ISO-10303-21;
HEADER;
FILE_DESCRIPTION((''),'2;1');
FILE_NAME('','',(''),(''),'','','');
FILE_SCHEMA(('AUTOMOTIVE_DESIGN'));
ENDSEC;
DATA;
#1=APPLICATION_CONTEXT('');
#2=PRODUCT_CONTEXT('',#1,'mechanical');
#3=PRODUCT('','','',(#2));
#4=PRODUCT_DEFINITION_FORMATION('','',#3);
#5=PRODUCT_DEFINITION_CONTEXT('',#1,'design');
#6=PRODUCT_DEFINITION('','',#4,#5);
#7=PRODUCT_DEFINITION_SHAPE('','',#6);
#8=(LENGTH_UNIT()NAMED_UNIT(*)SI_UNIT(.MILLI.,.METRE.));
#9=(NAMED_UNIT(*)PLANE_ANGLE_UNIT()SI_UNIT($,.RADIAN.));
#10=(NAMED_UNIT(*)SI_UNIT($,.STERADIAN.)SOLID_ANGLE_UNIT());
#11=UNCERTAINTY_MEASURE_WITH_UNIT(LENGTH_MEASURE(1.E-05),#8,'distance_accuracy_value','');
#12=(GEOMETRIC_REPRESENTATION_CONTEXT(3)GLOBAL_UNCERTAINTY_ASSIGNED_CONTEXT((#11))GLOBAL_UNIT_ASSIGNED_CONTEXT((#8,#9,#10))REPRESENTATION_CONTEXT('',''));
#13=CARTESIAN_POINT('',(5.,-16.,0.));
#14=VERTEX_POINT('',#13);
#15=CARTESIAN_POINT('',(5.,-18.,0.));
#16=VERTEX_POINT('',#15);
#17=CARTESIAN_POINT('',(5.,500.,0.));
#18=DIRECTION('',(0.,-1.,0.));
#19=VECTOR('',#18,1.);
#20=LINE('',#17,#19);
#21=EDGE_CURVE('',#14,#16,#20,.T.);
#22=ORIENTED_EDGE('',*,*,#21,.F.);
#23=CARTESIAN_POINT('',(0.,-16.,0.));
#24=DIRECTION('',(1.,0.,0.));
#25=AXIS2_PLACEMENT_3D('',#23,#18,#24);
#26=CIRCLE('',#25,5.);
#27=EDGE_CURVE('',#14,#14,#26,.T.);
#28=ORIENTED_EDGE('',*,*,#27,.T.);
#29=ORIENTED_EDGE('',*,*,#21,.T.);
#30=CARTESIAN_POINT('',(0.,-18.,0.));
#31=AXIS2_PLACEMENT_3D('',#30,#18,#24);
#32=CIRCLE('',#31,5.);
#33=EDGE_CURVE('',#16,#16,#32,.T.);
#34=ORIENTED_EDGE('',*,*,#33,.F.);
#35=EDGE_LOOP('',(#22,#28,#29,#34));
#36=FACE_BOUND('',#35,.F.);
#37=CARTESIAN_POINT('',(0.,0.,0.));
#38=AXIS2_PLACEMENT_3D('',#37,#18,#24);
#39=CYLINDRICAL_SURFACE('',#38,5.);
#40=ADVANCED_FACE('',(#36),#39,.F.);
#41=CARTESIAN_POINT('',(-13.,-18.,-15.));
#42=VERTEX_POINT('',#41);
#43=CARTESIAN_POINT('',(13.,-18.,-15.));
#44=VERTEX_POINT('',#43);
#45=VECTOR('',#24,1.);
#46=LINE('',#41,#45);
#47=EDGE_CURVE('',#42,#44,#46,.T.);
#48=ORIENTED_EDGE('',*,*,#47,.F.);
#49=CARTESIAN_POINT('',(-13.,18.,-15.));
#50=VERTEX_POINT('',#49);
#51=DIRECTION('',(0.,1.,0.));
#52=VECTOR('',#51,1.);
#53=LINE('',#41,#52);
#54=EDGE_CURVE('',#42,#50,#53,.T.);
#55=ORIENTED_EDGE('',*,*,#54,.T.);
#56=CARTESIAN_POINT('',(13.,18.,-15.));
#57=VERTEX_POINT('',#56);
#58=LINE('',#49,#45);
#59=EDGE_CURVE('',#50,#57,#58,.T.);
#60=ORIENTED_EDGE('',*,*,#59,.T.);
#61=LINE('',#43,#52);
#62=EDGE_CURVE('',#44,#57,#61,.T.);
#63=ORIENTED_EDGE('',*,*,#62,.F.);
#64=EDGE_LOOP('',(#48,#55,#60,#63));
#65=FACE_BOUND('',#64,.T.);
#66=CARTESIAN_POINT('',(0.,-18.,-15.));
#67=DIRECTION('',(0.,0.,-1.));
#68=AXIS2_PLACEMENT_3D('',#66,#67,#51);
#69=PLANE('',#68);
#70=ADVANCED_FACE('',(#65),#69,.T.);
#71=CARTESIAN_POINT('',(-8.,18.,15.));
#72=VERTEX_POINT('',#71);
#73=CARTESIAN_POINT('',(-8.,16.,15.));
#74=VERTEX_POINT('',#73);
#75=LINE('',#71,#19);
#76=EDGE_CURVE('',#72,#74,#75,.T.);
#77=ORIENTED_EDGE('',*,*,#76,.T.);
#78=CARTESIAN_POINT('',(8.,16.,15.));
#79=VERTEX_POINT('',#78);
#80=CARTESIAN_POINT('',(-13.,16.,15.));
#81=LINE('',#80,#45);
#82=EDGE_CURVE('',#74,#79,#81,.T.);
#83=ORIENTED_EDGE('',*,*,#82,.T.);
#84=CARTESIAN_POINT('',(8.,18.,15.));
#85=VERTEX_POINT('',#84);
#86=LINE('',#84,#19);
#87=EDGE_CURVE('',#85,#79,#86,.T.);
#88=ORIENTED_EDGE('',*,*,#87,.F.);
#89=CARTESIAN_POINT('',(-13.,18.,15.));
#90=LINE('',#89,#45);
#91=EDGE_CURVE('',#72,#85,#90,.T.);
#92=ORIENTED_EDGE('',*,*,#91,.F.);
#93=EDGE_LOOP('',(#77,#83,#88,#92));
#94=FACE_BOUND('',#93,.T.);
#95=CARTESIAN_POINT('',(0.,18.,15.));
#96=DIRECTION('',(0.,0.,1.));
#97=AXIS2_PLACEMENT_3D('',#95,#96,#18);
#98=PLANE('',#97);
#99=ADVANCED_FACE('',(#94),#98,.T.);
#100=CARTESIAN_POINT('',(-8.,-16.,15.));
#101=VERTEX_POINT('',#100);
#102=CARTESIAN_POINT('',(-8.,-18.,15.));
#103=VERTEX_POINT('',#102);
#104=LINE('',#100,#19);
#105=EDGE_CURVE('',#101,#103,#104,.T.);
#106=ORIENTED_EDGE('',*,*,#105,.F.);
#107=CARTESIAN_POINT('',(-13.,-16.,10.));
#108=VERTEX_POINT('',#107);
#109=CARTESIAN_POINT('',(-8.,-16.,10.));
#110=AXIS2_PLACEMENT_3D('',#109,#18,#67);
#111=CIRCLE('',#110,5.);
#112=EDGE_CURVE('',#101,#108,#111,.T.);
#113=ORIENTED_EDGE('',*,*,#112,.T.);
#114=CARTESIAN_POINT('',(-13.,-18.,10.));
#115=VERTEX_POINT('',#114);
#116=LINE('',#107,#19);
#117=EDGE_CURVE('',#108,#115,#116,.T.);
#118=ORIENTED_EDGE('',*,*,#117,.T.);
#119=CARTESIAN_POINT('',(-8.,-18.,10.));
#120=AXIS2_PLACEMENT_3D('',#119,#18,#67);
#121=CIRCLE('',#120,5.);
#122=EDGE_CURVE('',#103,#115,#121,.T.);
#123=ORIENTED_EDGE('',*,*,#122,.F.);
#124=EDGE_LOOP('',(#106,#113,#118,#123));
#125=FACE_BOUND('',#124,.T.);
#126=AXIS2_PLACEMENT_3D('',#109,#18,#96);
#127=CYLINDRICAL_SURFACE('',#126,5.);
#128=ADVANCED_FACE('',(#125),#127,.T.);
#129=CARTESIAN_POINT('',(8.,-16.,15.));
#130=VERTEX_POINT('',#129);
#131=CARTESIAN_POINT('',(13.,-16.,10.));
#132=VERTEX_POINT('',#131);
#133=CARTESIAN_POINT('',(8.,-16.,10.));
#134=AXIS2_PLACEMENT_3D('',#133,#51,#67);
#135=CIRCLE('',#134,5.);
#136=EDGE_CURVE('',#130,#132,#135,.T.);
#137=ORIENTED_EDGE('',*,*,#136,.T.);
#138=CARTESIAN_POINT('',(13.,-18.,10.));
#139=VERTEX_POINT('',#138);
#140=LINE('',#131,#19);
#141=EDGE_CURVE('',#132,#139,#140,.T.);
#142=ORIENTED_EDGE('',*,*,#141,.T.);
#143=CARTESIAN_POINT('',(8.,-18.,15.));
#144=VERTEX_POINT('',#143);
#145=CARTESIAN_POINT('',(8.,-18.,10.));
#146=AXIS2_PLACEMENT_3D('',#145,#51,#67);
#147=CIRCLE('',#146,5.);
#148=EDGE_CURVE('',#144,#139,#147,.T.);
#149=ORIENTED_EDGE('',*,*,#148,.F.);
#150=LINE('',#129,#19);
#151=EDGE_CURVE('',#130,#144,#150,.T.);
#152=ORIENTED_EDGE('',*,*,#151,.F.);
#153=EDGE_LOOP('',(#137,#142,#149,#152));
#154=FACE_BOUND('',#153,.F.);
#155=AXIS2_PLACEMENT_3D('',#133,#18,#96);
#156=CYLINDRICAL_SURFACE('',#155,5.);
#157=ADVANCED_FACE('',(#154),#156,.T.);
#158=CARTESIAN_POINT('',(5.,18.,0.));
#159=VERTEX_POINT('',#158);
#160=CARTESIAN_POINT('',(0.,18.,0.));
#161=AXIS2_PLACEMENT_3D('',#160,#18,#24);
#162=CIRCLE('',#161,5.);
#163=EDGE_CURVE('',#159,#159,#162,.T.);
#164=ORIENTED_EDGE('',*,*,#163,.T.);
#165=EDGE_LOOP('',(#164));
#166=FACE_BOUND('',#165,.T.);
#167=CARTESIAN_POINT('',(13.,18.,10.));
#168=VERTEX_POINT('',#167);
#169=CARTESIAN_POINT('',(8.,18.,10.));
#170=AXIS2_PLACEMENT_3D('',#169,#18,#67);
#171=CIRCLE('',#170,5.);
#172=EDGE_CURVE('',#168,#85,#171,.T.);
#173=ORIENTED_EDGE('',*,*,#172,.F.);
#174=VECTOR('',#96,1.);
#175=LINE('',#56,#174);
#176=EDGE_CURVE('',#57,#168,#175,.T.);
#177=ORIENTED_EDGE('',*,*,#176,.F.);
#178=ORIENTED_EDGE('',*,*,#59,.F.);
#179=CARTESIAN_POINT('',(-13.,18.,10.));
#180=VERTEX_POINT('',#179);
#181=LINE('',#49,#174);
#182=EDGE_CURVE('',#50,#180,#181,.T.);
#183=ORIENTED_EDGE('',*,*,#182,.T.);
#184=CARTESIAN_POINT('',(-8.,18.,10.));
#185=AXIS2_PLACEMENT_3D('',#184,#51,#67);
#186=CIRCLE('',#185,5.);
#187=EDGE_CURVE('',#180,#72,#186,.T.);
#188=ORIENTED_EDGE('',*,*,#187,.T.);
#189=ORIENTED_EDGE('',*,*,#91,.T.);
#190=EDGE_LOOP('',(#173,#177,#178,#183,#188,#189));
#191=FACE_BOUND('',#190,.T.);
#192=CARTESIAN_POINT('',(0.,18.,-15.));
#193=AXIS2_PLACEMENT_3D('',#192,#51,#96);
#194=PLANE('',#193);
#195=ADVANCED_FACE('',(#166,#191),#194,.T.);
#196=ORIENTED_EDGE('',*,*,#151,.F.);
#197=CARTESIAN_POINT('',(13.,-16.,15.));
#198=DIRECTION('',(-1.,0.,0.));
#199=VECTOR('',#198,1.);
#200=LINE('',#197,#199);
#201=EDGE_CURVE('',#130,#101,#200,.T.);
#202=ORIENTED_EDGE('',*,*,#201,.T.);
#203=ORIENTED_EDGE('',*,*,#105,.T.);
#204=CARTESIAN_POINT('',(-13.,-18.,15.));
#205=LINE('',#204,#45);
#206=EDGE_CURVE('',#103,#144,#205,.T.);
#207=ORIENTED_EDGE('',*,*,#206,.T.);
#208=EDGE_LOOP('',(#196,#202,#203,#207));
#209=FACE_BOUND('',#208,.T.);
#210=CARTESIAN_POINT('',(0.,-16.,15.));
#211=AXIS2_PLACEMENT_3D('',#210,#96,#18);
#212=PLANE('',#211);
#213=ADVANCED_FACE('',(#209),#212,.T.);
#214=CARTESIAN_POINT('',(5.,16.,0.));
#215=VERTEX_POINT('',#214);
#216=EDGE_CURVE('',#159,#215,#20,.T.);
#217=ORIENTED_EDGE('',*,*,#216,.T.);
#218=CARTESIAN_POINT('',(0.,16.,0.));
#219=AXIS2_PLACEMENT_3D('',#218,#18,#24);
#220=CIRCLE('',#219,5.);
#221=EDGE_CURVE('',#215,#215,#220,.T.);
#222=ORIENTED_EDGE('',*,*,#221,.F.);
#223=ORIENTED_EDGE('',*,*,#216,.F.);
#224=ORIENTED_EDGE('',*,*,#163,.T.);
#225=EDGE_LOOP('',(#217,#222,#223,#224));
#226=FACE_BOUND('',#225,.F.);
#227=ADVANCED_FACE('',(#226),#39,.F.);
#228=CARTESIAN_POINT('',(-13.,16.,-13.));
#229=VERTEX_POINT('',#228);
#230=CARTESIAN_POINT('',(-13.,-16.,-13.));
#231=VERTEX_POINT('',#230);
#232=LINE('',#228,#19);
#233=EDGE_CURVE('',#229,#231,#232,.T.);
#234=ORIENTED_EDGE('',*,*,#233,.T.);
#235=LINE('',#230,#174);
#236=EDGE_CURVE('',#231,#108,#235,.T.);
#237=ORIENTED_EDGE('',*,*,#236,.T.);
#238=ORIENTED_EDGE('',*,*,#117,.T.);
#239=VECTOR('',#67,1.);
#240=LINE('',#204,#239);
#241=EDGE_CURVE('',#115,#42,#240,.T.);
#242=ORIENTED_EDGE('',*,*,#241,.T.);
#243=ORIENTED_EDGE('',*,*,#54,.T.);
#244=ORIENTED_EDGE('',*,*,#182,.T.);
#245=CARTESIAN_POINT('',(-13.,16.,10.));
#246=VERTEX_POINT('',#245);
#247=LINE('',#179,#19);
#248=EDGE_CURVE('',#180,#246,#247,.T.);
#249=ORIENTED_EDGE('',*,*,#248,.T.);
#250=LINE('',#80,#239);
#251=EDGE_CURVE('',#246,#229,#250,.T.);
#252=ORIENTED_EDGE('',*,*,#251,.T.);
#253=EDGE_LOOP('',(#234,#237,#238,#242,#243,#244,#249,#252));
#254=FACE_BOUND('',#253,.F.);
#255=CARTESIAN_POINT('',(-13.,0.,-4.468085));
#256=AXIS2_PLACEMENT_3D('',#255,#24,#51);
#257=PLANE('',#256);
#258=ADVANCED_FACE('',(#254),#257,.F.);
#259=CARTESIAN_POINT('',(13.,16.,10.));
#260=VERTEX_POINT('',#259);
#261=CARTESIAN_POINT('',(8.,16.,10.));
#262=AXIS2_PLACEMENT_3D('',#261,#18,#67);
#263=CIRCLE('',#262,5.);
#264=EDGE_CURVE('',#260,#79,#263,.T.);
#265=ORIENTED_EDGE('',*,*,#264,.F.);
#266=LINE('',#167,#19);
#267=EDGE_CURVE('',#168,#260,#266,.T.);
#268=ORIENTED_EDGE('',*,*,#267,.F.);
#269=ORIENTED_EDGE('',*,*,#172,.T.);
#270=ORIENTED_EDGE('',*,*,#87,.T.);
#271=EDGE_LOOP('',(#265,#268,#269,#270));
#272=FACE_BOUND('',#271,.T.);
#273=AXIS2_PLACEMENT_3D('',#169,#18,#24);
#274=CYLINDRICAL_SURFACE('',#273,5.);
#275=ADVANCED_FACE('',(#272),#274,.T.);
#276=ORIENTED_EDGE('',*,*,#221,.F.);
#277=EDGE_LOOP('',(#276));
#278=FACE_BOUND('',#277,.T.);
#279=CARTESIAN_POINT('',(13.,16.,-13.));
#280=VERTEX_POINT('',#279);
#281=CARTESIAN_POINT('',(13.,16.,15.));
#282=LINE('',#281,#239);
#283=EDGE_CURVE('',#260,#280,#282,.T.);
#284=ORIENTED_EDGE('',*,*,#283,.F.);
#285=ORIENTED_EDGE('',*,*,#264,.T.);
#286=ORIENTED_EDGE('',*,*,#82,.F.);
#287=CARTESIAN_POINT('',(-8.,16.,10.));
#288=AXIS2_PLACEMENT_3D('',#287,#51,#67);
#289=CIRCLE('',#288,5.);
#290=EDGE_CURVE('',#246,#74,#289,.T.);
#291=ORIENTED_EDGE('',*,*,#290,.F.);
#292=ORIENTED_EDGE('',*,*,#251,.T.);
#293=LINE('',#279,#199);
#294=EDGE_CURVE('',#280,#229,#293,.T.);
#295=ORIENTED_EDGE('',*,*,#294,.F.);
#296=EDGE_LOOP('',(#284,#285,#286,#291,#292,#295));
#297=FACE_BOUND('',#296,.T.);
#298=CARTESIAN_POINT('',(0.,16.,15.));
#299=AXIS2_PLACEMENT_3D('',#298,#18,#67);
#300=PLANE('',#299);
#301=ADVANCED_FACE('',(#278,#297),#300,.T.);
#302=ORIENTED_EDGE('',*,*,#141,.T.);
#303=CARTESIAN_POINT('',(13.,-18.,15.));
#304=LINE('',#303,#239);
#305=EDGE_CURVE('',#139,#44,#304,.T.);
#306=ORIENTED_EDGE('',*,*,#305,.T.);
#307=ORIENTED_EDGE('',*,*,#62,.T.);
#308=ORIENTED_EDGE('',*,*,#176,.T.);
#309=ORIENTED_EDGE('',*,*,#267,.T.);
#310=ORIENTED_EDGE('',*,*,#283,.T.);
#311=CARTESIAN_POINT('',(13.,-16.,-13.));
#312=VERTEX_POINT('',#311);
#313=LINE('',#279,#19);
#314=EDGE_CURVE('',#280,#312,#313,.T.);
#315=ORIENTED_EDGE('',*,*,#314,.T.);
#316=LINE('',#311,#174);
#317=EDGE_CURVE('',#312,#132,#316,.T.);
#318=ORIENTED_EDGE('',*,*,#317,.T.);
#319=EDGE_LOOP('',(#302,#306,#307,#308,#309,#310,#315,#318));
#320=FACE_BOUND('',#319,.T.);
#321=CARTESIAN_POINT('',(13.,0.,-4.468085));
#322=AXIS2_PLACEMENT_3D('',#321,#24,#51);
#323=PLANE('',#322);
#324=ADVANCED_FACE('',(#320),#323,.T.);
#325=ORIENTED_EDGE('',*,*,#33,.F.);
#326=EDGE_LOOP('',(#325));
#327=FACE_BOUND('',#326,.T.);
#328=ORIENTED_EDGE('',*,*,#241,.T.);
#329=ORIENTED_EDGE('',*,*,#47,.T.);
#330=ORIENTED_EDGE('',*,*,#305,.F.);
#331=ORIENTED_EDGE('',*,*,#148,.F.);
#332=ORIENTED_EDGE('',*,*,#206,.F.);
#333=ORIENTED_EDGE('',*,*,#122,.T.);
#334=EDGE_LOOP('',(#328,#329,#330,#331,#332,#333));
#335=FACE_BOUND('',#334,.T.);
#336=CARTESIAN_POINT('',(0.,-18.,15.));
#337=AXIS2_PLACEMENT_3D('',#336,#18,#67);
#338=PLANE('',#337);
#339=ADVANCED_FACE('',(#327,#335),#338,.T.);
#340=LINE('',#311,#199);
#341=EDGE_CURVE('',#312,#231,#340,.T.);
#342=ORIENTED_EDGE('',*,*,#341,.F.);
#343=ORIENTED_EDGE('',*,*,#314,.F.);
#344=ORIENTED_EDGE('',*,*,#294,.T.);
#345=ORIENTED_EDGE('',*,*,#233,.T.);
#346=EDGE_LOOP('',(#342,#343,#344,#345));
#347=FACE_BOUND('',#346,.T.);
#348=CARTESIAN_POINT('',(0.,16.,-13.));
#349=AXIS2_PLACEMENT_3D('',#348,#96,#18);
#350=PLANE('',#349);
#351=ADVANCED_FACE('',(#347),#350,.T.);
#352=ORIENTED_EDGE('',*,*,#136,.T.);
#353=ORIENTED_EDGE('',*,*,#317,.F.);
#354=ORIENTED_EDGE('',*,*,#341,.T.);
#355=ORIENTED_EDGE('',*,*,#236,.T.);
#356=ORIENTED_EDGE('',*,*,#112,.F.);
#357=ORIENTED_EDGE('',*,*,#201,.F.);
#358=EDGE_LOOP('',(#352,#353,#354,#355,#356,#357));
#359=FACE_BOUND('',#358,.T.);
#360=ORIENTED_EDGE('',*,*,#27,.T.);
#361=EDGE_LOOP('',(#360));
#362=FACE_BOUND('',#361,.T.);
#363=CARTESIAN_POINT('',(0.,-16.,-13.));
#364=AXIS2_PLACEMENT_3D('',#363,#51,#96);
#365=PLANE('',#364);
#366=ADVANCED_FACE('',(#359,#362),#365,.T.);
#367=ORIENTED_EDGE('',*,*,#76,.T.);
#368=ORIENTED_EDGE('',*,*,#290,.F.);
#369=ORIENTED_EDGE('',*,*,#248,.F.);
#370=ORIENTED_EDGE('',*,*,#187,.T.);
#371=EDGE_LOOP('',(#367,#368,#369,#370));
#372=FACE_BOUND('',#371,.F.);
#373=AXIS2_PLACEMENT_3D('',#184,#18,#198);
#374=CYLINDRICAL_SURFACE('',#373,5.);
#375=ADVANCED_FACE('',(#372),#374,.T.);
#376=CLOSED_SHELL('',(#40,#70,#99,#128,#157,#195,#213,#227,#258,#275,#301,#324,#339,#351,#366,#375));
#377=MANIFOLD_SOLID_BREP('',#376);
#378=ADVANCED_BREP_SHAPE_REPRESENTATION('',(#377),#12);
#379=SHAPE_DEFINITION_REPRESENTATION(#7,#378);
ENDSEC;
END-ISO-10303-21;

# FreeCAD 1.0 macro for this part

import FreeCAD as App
import Part
import Sketcher

V = App.Vector


def edges_at(feature, points):
    """Names of the edges that pass closest to the given points."""
    edges = feature.Shape.Edges
    near = lambda p: min(range(len(edges)), key=lambda i: edges[i].distToShape(Part.Vertex(*p))[0])
    return sorted({f"Edge{near(p) + 1}" for p in points})


def add_polygon(sketch, points):
    """Adds a closed chain of lines whose ends are joined by coincident constraints."""
    first, n = sketch.GeometryCount, len(points)
    for a, b in zip(points, points[1:] + points[:1]):
        sketch.addGeometry(Part.LineSegment(App.Vector(*a, 0), App.Vector(*b, 0)), False)
    for i in range(n):
        sketch.addConstraint(Sketcher.Constraint("Coincident", first + i, 2, first + (i + 1) % n, 1))

doc = App.newDocument("Part")
body = doc.addObject("PartDesign::Body", "Body")

# Sketch on YZ plane
sketch1 = body.newObject("Sketcher::SketchObject", "Sketch")
sketch1.AttachmentSupport = (doc.getObject("YZ_Plane"), [""])
sketch1.MapMode = "FlatFace"
add_polygon(sketch1, [(-16, 15), (-18, 15), (-18, -15), (18, -15), (18, 15), (16, 15), (16, -13), (-16, -13)])  # lines 0-7
sketch1.addConstraint([
    Sketcher.Constraint("Horizontal", 0),
    Sketcher.Constraint("Vertical", 1),
    Sketcher.Constraint("Horizontal", 2),
    Sketcher.Constraint("Vertical", 3),
    Sketcher.Constraint("Horizontal", 4),
    Sketcher.Constraint("Vertical", 5),
    Sketcher.Constraint("Horizontal", 6),
    Sketcher.Constraint("Vertical", 7),
    Sketcher.Constraint("Symmetric", 0, 2, 2, 2, -1, 1),
    Sketcher.Constraint("Symmetric", 4, 2, 7, 2, -2),
    Sketcher.Constraint("DistanceX", 0, 2, 0, 1, 2.0),
    Sketcher.Constraint("DistanceX", 2, 1, 2, 2, 36.0),
    Sketcher.Constraint("DistanceY", 1, 2, 1, 1, 30.0),
    Sketcher.Constraint("DistanceY", 5, 2, 5, 1, 28.0),
])
pad1 = body.newObject("PartDesign::Pad", "Pad")
pad1.Profile = sketch1
pad1.Length = 26
pad1.Midplane = True

# Sketch on XZ plane
sketch2 = body.newObject("Sketcher::SketchObject", "Sketch001")
sketch2.AttachmentSupport = (doc.getObject("XZ_Plane"), [""])
sketch2.MapMode = "FlatFace"
sketch2.addGeometry(Part.Circle(V(0, 0, 0), V(0, 0, 1), 5), False)
sketch2.addConstraint([
    Sketcher.Constraint("Coincident", 0, 3, -1, 1),
    Sketcher.Constraint("Diameter", 0, 10.0),
])
pocket1 = body.newObject("PartDesign::Pocket", "Pocket")
pocket1.Profile = sketch2
pocket1.Length = 1000
pocket1.Midplane = True
doc.recompute()

fillet = body.newObject("PartDesign::Fillet", "Fillet")
fillet.Base = (pocket1, edges_at(pocket1, [
    (13, 17, 15),
    (-13, 17, 15),
    (-13, -17, 15),
    (13, -17, 15),
]))
fillet.Radius = 5

doc.recompute()
